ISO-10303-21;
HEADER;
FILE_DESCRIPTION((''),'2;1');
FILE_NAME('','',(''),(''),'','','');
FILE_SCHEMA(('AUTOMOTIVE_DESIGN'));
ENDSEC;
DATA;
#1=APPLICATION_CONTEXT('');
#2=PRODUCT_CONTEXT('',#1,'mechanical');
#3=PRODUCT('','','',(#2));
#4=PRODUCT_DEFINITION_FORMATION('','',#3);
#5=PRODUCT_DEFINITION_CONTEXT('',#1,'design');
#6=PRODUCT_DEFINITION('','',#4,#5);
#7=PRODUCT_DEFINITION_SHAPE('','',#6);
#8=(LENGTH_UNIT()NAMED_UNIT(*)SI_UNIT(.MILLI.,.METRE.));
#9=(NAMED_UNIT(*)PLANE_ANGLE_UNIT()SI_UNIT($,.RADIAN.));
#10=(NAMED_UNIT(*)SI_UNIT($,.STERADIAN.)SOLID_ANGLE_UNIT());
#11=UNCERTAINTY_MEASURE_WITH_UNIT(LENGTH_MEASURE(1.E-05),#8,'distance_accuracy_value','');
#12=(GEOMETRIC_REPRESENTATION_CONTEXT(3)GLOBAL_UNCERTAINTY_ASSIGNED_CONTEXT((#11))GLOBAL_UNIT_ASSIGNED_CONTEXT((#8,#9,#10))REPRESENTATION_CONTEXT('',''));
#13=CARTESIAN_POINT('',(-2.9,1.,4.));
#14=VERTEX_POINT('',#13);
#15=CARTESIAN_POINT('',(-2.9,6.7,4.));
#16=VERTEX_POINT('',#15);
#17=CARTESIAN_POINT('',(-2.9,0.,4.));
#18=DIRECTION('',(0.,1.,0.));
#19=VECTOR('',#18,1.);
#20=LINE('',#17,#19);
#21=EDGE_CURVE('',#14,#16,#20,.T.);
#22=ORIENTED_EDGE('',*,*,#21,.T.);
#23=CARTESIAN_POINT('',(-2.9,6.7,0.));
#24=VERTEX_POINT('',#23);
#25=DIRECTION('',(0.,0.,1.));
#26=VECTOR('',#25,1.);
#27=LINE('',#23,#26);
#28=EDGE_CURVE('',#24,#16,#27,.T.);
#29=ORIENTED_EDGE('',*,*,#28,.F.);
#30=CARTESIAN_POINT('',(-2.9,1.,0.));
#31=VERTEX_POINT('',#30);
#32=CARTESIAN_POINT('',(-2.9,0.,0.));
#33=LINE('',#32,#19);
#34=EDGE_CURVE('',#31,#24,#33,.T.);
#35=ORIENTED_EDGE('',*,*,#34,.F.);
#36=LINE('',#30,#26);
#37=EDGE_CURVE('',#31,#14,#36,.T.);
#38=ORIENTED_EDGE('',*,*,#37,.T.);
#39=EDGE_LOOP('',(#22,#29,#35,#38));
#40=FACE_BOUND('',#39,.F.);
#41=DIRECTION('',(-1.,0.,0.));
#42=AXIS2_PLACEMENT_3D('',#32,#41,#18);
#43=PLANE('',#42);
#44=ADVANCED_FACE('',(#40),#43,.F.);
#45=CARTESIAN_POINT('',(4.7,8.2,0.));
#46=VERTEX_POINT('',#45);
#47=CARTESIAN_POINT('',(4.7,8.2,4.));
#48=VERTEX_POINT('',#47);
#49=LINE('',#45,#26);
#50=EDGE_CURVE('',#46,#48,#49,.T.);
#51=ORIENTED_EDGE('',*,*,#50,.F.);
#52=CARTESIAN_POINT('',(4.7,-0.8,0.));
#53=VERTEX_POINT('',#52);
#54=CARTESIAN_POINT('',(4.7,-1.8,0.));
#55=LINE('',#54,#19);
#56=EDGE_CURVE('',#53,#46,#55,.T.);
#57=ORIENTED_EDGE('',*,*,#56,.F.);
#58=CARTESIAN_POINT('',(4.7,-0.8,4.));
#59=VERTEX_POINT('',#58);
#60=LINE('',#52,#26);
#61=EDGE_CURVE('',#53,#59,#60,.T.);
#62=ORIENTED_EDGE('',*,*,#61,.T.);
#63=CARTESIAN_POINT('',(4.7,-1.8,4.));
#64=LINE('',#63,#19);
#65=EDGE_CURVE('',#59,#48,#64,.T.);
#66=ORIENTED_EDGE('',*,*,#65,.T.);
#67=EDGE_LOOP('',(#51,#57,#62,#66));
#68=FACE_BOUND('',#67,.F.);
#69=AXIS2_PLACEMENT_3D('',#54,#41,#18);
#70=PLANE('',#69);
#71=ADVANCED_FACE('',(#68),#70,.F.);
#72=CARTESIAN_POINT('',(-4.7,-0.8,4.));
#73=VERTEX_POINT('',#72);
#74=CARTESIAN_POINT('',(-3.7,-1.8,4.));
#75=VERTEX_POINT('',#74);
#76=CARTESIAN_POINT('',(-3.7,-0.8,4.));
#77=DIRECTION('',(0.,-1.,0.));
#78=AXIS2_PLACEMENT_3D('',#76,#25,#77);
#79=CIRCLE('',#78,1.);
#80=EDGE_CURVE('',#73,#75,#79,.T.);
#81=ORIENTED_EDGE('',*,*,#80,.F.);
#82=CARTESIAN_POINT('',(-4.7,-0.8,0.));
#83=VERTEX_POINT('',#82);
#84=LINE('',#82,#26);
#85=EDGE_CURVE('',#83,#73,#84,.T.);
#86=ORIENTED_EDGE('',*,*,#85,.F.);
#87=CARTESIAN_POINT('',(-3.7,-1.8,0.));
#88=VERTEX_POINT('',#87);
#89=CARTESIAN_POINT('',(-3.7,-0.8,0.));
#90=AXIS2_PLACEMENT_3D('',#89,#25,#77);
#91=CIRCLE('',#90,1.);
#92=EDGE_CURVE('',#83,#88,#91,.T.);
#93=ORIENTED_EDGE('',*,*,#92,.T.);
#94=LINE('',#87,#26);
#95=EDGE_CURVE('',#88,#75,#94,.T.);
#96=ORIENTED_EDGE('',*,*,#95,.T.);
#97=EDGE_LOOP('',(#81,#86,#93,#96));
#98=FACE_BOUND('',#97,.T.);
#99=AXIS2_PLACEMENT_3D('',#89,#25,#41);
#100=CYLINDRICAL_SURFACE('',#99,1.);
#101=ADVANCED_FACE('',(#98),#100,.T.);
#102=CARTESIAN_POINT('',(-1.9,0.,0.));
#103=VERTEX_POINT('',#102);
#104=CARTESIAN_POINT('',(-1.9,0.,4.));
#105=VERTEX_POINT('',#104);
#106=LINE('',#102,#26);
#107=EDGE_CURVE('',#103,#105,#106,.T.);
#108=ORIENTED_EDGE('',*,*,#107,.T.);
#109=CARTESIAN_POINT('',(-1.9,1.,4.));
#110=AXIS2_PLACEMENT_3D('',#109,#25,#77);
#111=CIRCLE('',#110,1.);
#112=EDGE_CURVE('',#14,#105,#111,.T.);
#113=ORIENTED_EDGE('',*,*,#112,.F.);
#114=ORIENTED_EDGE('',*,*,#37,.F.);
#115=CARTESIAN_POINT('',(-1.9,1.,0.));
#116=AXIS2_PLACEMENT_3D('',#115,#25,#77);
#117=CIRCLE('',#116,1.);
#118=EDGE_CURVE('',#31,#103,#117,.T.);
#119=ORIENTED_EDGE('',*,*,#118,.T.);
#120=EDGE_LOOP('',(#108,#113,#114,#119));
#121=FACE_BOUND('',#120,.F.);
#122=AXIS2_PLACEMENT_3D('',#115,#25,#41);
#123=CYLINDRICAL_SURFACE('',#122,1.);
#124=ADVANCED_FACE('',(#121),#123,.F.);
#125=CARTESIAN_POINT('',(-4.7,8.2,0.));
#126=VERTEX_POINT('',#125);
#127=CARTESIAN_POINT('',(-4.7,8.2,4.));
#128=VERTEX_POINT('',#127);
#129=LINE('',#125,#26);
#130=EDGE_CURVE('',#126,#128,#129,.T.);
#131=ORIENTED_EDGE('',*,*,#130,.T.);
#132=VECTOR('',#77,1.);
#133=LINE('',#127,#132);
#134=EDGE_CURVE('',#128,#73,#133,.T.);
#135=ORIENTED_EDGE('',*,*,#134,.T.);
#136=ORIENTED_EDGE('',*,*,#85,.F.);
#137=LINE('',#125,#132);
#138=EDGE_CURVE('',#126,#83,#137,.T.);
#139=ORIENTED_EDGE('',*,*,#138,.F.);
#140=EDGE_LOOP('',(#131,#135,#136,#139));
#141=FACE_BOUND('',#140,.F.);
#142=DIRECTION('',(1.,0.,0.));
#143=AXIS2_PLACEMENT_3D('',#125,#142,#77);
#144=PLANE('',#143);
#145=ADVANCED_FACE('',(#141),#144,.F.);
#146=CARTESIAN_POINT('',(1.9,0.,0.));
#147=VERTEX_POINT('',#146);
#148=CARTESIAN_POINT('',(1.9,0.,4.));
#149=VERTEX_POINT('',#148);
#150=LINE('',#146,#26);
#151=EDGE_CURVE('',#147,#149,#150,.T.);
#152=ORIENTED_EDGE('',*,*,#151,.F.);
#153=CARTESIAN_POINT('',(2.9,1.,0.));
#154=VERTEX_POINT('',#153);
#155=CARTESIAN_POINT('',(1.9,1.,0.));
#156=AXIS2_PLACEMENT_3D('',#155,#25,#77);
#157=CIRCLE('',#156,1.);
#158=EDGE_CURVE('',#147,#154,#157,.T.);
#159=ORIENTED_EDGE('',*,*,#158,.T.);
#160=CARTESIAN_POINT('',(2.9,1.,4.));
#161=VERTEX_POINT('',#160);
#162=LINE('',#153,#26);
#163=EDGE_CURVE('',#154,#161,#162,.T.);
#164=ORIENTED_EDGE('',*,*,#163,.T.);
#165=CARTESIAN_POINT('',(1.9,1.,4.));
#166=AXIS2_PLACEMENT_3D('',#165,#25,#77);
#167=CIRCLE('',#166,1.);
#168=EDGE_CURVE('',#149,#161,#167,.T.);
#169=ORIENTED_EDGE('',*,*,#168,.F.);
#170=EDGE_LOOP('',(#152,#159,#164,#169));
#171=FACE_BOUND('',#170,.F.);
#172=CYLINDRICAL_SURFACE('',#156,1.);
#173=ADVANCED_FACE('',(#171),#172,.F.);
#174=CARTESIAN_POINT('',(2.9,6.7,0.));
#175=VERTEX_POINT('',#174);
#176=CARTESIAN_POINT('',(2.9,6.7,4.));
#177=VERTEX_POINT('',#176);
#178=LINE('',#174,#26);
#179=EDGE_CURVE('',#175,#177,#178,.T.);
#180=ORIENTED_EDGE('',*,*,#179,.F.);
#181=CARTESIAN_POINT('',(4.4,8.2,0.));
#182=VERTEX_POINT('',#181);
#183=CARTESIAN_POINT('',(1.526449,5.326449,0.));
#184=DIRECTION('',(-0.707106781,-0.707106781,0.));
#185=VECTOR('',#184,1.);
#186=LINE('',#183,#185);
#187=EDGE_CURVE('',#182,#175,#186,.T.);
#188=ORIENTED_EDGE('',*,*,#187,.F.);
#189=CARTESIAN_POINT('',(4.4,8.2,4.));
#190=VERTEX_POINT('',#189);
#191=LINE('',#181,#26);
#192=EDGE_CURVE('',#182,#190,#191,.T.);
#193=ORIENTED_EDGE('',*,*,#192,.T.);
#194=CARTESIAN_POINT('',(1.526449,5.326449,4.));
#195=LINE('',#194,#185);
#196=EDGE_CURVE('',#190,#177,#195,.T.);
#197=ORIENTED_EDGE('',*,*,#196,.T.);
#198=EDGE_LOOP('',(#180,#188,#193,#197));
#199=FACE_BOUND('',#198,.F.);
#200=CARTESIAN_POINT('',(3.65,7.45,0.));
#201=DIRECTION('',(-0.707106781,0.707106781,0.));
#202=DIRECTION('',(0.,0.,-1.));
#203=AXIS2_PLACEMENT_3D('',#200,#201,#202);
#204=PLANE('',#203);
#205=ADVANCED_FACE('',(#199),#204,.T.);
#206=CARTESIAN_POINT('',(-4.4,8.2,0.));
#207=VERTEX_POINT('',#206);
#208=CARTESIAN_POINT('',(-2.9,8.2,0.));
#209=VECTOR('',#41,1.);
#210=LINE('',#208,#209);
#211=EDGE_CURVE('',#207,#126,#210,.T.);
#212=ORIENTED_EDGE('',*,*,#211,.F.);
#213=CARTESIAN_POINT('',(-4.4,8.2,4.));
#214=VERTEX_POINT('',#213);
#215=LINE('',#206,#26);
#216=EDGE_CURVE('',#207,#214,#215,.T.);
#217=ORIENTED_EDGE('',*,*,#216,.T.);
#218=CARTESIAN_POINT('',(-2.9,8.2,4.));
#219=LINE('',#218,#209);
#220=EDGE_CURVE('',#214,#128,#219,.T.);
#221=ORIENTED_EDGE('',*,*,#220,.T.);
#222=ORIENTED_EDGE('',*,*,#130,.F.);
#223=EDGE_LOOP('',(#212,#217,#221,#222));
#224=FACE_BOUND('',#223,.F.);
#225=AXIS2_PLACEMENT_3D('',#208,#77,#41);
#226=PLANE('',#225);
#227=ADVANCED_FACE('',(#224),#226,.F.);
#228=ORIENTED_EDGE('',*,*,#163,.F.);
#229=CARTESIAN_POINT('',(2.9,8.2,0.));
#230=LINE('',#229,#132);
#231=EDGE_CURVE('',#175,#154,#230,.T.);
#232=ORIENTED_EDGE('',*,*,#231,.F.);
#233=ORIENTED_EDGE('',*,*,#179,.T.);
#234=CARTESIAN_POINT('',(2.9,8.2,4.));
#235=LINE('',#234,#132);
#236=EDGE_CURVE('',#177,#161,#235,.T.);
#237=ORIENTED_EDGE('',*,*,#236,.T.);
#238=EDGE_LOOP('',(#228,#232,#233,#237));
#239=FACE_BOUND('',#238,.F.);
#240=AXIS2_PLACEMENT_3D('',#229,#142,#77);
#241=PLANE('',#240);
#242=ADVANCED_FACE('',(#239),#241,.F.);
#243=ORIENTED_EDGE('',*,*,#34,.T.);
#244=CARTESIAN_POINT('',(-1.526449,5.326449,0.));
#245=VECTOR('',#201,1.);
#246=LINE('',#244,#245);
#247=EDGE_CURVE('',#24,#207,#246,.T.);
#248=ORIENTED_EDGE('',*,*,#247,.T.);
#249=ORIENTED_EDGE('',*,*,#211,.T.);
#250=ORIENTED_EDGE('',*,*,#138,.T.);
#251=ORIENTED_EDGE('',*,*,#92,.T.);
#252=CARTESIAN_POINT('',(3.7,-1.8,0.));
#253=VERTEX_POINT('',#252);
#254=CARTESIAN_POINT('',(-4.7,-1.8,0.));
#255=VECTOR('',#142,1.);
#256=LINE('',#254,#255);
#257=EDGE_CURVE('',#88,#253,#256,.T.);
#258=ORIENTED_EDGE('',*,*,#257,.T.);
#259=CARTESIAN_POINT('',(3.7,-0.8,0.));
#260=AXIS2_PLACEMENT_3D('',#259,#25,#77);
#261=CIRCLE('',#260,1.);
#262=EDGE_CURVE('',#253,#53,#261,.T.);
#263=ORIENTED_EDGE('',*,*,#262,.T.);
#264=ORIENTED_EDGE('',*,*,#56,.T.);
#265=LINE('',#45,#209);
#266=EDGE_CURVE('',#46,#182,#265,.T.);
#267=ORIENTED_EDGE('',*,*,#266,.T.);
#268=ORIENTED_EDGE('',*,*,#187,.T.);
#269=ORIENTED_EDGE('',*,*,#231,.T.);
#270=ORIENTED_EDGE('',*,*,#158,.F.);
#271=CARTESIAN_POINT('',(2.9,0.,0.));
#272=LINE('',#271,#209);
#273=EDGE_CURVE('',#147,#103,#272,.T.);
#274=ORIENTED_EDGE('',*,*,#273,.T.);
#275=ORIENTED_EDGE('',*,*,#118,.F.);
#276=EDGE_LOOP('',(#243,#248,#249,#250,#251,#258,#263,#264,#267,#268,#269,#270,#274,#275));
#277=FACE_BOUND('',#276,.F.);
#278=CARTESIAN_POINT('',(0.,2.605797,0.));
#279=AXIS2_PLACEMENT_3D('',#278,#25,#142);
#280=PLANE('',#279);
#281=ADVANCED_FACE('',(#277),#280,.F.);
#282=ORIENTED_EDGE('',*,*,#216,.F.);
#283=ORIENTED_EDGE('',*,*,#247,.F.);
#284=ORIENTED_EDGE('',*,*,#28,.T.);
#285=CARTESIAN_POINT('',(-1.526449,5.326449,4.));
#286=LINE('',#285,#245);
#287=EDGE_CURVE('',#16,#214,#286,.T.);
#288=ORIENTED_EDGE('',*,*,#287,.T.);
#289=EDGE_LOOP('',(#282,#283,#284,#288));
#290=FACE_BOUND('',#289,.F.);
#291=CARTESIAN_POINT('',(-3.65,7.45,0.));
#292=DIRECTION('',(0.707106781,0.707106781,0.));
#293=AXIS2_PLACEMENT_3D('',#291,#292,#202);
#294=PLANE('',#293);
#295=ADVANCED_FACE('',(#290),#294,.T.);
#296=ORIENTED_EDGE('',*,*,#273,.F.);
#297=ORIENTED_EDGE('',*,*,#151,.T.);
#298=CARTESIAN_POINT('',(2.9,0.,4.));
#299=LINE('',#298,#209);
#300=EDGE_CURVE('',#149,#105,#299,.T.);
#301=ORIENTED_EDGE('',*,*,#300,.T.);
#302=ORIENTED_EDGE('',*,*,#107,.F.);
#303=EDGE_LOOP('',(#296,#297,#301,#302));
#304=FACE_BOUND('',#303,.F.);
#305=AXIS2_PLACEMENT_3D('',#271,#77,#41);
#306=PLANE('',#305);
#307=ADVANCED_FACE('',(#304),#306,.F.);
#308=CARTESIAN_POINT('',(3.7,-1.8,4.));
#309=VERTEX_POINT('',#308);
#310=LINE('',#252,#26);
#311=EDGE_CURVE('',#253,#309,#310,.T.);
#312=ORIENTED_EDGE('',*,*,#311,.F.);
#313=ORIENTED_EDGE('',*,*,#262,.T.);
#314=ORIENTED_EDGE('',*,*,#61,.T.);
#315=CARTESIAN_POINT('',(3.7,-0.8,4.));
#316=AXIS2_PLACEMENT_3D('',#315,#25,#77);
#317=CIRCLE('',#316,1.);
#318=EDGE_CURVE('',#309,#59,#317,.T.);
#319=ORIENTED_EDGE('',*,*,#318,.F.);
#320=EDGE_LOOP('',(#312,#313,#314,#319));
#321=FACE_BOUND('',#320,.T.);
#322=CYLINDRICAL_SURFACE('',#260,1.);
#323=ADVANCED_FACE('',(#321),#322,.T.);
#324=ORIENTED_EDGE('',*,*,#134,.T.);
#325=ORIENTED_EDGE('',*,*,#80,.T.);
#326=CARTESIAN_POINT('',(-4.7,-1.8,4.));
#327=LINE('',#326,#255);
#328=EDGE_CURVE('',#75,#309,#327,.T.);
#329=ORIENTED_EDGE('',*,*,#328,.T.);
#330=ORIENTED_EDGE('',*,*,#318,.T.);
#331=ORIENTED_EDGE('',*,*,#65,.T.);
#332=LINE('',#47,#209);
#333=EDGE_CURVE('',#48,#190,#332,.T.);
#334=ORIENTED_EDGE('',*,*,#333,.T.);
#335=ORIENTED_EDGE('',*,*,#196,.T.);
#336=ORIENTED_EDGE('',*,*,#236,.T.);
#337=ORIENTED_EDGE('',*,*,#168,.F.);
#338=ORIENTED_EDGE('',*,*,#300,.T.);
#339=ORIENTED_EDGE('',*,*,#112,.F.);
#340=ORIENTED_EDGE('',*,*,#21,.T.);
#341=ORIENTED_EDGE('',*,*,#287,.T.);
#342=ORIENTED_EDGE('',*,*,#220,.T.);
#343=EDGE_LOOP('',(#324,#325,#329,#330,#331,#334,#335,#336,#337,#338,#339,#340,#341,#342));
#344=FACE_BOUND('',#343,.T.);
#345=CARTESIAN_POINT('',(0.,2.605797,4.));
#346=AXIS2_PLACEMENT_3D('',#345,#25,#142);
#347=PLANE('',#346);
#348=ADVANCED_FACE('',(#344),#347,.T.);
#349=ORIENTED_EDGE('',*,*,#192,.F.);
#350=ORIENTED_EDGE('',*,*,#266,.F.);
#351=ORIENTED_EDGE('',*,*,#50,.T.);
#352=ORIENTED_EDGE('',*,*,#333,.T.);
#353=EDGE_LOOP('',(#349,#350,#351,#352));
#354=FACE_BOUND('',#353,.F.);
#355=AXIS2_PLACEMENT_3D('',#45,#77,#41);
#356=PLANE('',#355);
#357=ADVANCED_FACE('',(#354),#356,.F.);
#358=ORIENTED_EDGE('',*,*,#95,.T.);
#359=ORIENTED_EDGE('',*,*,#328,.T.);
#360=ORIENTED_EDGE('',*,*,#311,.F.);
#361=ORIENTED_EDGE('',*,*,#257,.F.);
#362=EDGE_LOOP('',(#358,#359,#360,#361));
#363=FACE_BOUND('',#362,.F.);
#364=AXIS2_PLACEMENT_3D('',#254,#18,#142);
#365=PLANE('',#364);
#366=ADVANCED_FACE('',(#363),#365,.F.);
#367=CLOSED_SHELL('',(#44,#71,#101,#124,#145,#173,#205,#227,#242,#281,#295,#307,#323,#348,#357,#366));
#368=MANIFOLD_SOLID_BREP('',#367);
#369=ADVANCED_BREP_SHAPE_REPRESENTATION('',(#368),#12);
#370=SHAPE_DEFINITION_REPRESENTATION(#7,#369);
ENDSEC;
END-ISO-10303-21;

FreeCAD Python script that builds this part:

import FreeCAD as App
import Part
import Sketcher
from FreeCAD import Vector
Q = App.Units.Quantity


def edges_at(feature, points):
    """Names of the edges that pass closest to the given points."""
    edges = feature.Shape.Edges
    near = lambda p: min(range(len(edges)), key=lambda i: edges[i].distToShape(Part.Vertex(*p))[0])
    return sorted({f"Edge{near(p) + 1}" for p in points})


def add_polygon(sketch, points):
    """Adds a closed chain of lines whose ends are joined by coincident constraints."""
    first, n = sketch.GeometryCount, len(points)
    for a, b in zip(points, points[1:] + points[:1]):
        sketch.addGeometry(Part.LineSegment(App.Vector(*a, 0), App.Vector(*b, 0)), False)
    for i in range(n):
        sketch.addConstraint(Sketcher.Constraint("Coincident", first + i, 2, first + (i + 1) % n, 1))

doc = App.newDocument("Part")
body = doc.addObject("PartDesign::Body", "Body")

sketch1 = body.newObject("Sketcher::SketchObject", "Sketch")
sketch1.AttachmentSupport = (doc.getObject("XY_Plane"), [""])
sketch1.MapMode = "FlatFace"
add_polygon(sketch1, [(-2.9, 0), (-2.9, 8.2), (-4.7, 8.2), (-4.7, -1.8), (4.7, -1.8), (4.7, 8.2), (2.9, 8.2), (2.9, 0)])
sketch1.addConstraint(Sketcher.Constraint("Vertical", 0))
sketch1.addConstraint(Sketcher.Constraint("Horizontal", 1))
sketch1.addConstraint(Sketcher.Constraint("Vertical", 2))
sketch1.addConstraint(Sketcher.Constraint("Horizontal", 3))
sketch1.addConstraint(Sketcher.Constraint("Vertical", 4))
sketch1.addConstraint(Sketcher.Constraint("Horizontal", 5))
sketch1.addConstraint(Sketcher.Constraint("Vertical", 6))
sketch1.addConstraint(Sketcher.Constraint("Horizontal", 7))
sketch1.addConstraint(Sketcher.Constraint("Symmetric", 6, 2, 7, 2, -1, 1))
sketch1.addConstraint(Sketcher.Constraint("Symmetric", 1, 2, 4, 2, -2))
sketch1.addConstraint(Sketcher.Constraint("DistanceY", 2, 2, 2, 1, Q("10 mm")))
sketch1.addConstraint(Sketcher.Constraint("DistanceX", 1, 2, 1, 1, Q("1.8 mm")))
sketch1.addConstraint(Sketcher.Constraint("DistanceX", 3, 1, 3, 2, Q("9.4 mm")))
sketch1.addConstraint(Sketcher.Constraint("DistanceY", 0, 1, 0, 2, Q("8.2 mm")))
pad1 = body.newObject("PartDesign::Pad", "Pad")
pad1.Profile = sketch1
pad1.Length = 4
doc.recompute()

chamfer = body.newObject("PartDesign::Chamfer", "Chamfer")
chamfer.Base = (pad1, edges_at(pad1, [(-2.9, 8.2, 2), (2.9, 8.2, 2)]))
chamfer.Size = 1.5
doc.recompute()

fillet = body.newObject("PartDesign::Fillet", "Fillet")
fillet.Base = (chamfer, edges_at(chamfer, [
    (-2.9, 0, 2),
    (2.9, 0, 2),
    (-4.7, -1.8, 2),
    (4.7, -1.8, 2),
]))
fillet.Radius = 1

doc.recompute()
